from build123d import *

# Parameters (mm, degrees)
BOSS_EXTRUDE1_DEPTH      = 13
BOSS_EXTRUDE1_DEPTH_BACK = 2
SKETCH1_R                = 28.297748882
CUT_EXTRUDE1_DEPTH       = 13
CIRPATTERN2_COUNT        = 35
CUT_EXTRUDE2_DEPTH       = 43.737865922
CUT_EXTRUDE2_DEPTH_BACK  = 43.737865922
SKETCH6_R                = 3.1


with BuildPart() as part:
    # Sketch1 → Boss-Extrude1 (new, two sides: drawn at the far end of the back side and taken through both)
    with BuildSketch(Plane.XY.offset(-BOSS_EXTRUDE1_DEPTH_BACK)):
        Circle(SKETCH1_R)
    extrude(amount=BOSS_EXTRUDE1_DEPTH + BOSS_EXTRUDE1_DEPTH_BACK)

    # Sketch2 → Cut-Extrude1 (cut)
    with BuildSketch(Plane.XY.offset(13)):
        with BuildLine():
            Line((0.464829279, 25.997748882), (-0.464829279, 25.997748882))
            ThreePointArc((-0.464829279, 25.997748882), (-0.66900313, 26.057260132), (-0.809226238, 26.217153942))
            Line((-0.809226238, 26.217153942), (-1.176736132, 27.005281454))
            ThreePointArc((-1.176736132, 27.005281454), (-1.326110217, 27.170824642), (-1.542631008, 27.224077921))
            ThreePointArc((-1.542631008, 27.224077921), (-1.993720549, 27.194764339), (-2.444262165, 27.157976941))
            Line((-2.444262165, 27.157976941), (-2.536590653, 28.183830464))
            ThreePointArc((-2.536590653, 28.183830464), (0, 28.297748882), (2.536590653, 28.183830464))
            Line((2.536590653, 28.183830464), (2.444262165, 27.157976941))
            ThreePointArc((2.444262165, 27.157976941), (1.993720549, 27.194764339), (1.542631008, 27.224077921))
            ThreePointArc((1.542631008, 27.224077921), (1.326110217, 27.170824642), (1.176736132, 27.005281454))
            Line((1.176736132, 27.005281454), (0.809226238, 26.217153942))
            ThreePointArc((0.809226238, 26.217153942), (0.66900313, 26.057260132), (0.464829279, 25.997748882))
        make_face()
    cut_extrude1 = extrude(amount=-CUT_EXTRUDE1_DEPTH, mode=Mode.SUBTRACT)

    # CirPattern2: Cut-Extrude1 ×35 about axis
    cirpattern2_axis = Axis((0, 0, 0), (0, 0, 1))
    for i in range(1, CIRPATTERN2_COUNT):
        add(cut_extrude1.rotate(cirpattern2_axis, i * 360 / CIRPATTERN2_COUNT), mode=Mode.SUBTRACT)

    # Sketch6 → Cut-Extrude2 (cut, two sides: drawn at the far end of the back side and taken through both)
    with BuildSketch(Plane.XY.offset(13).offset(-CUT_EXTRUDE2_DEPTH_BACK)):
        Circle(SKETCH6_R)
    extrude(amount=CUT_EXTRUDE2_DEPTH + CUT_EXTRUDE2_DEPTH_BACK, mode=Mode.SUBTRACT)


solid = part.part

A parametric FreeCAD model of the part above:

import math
import FreeCAD as App
import Part
import Sketcher
from FreeCAD import Vector
Q = App.Units.Quantity

doc = App.newDocument("Part")
params = doc.addObject("Spreadsheet::Sheet", "Params")
for row, (alias, value) in enumerate([
    ("pad1_length", "13 mm"),
    ("pad1_length2", "2 mm"),
    ("sketch2_radius", "0.38 mm"),
    ("sketch2_length", "1.03 mm"),
    ("pocket1_length", "13 mm"),
    ("sketch3_diameter", "6.2 mm"),
], start=1):
    params.set(f"A{row}", alias)
    params.set(f"B{row}", "=" + value)
    params.setAlias(f"B{row}", alias)

body = doc.addObject("PartDesign::Body", "Body")

sketch1 = body.newObject("Sketcher::SketchObject", "Sketch")
sketch1.AttachmentSupport = (doc.getObject("XY_Plane"), [""])
sketch1.MapMode = "FlatFace"
sketch1.addGeometry(Part.Circle(Vector(0, 0, 0), Vector(0, 0, 1), 28.297749), False)
sketch1.addConstraint(Sketcher.Constraint("Coincident", 0, 3, -1, 1))
sketch1.addConstraint(Sketcher.Constraint("Diameter", 0, Q("56.595498 mm")))
pad1 = body.newObject("PartDesign::Pad", "Pad")
pad1.Profile = sketch1
pad1.Type = "TwoLengths"
pad1.setExpression("Length", "Params.pad1_length")
pad1.setExpression("Length2", "Params.pad1_length2")

sketch2 = body.newObject("Sketcher::SketchObject", "Sketch001")
sketch2.AttachmentSupport = (doc.getObject("XY_Plane"), [""])
sketch2.MapMode = "FlatFace"
sketch2.AttachmentOffset = App.Placement(Vector(0, 0, 13), App.Rotation())
sketch2.addGeometry(Part.LineSegment(Vector(-0.464829, 25.997749, 0), Vector(0.464829, 25.997749, 0)), False)
sketch2.addGeometry(Part.ArcOfCircle(Part.Circle(Vector(0.464829, 26.377749, 0), Vector(0, 0, 1), 0.38), math.radians(-90), math.radians(-25)), False)
sketch2.addGeometry(Part.LineSegment(Vector(0.809226, 26.217154, 0), Vector(1.176736, 27.005281, 0)), False)
sketch2.addGeometry(Part.ArcOfCircle(Part.Circle(Vector(1.521133, 26.844687, 0), Vector(0, 0, 1), 0.38), math.radians(86.756848), math.radians(155)), False)
sketch2.addGeometry(Part.ArcOfCircle(Part.Circle(Vector(0, 0.000002, 0), Vector(0, 0, 1), 27.267747), math.radians(84.857143), math.radians(86.756848)), False)
sketch2.addGeometry(Part.LineSegment(Vector(2.444262, 27.157977, 0), Vector(2.536591, 28.18383, 0)), False)
sketch2.addGeometry(Part.ArcOfCircle(Part.Circle(Vector(0, 0, 0), Vector(0, 0, 1), 28.297749), math.radians(84.857143), math.radians(95.142857)), False)
sketch2.addGeometry(Part.LineSegment(Vector(-2.536591, 28.18383, 0), Vector(-2.444262, 27.157977, 0)), False)
sketch2.addGeometry(Part.ArcOfCircle(Part.Circle(Vector(0, 0.000002, 0), Vector(0, 0, 1), 27.267747), math.radians(93.243152), math.radians(95.142857)), False)
sketch2.addGeometry(Part.ArcOfCircle(Part.Circle(Vector(-1.521133, 26.844687, 0), Vector(0, 0, 1), 0.38), math.radians(25), math.radians(93.243152)), False)
sketch2.addGeometry(Part.LineSegment(Vector(-1.176736, 27.005281, 0), Vector(-0.809226, 26.217154, 0)), False)
sketch2.addGeometry(Part.ArcOfCircle(Part.Circle(Vector(-0.464829, 26.377749, 0), Vector(0, 0, 1), 0.38), math.radians(-155), math.radians(-90)), False)
sketch2.addConstraint(Sketcher.Constraint("Tangent", 0, 2, 1, 1))
sketch2.addConstraint(Sketcher.Constraint("Tangent", 1, 2, 2, 1))
sketch2.addConstraint(Sketcher.Constraint("Tangent", 2, 2, 3, 2))
sketch2.addConstraint(Sketcher.Constraint("Tangent", 3, 1, 4, 2))
sketch2.addConstraint(Sketcher.Constraint("Coincident", 4, 1, 5, 1))
sketch2.addConstraint(Sketcher.Constraint("Coincident", 5, 2, 6, 1))
sketch2.addConstraint(Sketcher.Constraint("Coincident", 6, 2, 7, 1))
sketch2.addConstraint(Sketcher.Constraint("Coincident", 7, 2, 8, 2))
sketch2.addConstraint(Sketcher.Constraint("Tangent", 8, 1, 9, 2))
sketch2.addConstraint(Sketcher.Constraint("Tangent", 9, 1, 10, 1))
sketch2.addConstraint(Sketcher.Constraint("Tangent", 10, 2, 11, 1))
sketch2.addConstraint(Sketcher.Constraint("Tangent", 11, 2, 0, 1))
sketch2.addConstraint(Sketcher.Constraint("Horizontal", 0))
sketch2.addConstraint(Sketcher.Constraint("Coincident", 4, 3, -1, 1))
sketch2.addConstraint(Sketcher.Constraint("Coincident", 6, 3, -1, 1))
sketch2.addConstraint(Sketcher.Constraint("Coincident", 8, 3, -1, 1))
sketch2.addConstraint(Sketcher.Constraint("Equal", 1, 3))
sketch2.addConstraint(Sketcher.Constraint("Equal", 4, 8))
sketch2.addConstraint(Sketcher.Constraint("Equal", 3, 9))
sketch2.addConstraint(Sketcher.Constraint("Equal", 9, 11))
sketch2.addConstraint(Sketcher.Constraint("Symmetric", 2, 2, 9, 1, -2))
sketch2.addConstraint(Sketcher.Constraint("Horizontal", 5, 2, 6, 2))
sketch2.addConstraint(Sketcher.Constraint("Horizontal", 4, 1, 7, 2))
sketch2.addConstraint(Sketcher.Constraint("Angle", 2, Q("65 deg")))
sketch2.addConstraint(Sketcher.Constraint("Radius", 1, Q("0.38 mm")))
sketch2.addConstraint(Sketcher.Constraint("Distance", 5, Q("1.03 mm")))
sketch2.addConstraint(Sketcher.Constraint("Radius", 6, Q("28.297749 mm")))
sketch2.addConstraint(Sketcher.Constraint("DistanceX", 0, 1, 0, 2, Q("0.929659 mm")))
sketch2.addConstraint(Sketcher.Constraint("DistanceX", 1, 3, 3, 1, Q("1.077802 mm")))
sketch2.addConstraint(Sketcher.Constraint("DistanceY", 4, 1, 3, 1, Q("0.066101 mm")))
sketch2.addConstraint(Sketcher.Constraint("DistanceX", -1, 1, 5, 2, Q("2.536591 mm")))
sketch2.setExpression("Constraints[24]", "Params.sketch2_radius")
sketch2.setExpression("Constraints[25]", "Params.sketch2_length")
pocket1 = body.newObject("PartDesign::Pocket", "Pocket")
pocket1.Profile = sketch2
pocket1.setExpression("Length", "Params.pocket1_length")
doc.recompute()

polarpattern = body.newObject("PartDesign::PolarPattern", "PolarPattern")
polarpattern.Originals = [pocket1]
polarpattern.Axis = (doc.getObject("Z_Axis"), [""])
polarpattern.Angle = 360
polarpattern.Occurrences = 35
body.Tip = polarpattern

sketch3 = body.newObject("Sketcher::SketchObject", "Sketch002")
sketch3.AttachmentSupport = (doc.getObject("XY_Plane"), [""])
sketch3.MapMode = "FlatFace"
sketch3.AttachmentOffset = App.Placement(Vector(0, 0, 13), App.Rotation())
sketch3.addGeometry(Part.Circle(Vector(0, 0, 0), Vector(0, 0, 1), 3.1), False)
sketch3.addConstraint(Sketcher.Constraint("Coincident", 0, 3, -1, 1))
sketch3.addConstraint(Sketcher.Constraint("Diameter", 0, Q("6.2 mm")))
sketch3.setExpression("Constraints[1]", "Params.sketch3_diameter")
pocket2 = body.newObject("PartDesign::Pocket", "Pocket001")
pocket2.Profile = sketch3
pocket2.Type = "ThroughAll"
pocket2.Midplane = True

doc.recompute()
